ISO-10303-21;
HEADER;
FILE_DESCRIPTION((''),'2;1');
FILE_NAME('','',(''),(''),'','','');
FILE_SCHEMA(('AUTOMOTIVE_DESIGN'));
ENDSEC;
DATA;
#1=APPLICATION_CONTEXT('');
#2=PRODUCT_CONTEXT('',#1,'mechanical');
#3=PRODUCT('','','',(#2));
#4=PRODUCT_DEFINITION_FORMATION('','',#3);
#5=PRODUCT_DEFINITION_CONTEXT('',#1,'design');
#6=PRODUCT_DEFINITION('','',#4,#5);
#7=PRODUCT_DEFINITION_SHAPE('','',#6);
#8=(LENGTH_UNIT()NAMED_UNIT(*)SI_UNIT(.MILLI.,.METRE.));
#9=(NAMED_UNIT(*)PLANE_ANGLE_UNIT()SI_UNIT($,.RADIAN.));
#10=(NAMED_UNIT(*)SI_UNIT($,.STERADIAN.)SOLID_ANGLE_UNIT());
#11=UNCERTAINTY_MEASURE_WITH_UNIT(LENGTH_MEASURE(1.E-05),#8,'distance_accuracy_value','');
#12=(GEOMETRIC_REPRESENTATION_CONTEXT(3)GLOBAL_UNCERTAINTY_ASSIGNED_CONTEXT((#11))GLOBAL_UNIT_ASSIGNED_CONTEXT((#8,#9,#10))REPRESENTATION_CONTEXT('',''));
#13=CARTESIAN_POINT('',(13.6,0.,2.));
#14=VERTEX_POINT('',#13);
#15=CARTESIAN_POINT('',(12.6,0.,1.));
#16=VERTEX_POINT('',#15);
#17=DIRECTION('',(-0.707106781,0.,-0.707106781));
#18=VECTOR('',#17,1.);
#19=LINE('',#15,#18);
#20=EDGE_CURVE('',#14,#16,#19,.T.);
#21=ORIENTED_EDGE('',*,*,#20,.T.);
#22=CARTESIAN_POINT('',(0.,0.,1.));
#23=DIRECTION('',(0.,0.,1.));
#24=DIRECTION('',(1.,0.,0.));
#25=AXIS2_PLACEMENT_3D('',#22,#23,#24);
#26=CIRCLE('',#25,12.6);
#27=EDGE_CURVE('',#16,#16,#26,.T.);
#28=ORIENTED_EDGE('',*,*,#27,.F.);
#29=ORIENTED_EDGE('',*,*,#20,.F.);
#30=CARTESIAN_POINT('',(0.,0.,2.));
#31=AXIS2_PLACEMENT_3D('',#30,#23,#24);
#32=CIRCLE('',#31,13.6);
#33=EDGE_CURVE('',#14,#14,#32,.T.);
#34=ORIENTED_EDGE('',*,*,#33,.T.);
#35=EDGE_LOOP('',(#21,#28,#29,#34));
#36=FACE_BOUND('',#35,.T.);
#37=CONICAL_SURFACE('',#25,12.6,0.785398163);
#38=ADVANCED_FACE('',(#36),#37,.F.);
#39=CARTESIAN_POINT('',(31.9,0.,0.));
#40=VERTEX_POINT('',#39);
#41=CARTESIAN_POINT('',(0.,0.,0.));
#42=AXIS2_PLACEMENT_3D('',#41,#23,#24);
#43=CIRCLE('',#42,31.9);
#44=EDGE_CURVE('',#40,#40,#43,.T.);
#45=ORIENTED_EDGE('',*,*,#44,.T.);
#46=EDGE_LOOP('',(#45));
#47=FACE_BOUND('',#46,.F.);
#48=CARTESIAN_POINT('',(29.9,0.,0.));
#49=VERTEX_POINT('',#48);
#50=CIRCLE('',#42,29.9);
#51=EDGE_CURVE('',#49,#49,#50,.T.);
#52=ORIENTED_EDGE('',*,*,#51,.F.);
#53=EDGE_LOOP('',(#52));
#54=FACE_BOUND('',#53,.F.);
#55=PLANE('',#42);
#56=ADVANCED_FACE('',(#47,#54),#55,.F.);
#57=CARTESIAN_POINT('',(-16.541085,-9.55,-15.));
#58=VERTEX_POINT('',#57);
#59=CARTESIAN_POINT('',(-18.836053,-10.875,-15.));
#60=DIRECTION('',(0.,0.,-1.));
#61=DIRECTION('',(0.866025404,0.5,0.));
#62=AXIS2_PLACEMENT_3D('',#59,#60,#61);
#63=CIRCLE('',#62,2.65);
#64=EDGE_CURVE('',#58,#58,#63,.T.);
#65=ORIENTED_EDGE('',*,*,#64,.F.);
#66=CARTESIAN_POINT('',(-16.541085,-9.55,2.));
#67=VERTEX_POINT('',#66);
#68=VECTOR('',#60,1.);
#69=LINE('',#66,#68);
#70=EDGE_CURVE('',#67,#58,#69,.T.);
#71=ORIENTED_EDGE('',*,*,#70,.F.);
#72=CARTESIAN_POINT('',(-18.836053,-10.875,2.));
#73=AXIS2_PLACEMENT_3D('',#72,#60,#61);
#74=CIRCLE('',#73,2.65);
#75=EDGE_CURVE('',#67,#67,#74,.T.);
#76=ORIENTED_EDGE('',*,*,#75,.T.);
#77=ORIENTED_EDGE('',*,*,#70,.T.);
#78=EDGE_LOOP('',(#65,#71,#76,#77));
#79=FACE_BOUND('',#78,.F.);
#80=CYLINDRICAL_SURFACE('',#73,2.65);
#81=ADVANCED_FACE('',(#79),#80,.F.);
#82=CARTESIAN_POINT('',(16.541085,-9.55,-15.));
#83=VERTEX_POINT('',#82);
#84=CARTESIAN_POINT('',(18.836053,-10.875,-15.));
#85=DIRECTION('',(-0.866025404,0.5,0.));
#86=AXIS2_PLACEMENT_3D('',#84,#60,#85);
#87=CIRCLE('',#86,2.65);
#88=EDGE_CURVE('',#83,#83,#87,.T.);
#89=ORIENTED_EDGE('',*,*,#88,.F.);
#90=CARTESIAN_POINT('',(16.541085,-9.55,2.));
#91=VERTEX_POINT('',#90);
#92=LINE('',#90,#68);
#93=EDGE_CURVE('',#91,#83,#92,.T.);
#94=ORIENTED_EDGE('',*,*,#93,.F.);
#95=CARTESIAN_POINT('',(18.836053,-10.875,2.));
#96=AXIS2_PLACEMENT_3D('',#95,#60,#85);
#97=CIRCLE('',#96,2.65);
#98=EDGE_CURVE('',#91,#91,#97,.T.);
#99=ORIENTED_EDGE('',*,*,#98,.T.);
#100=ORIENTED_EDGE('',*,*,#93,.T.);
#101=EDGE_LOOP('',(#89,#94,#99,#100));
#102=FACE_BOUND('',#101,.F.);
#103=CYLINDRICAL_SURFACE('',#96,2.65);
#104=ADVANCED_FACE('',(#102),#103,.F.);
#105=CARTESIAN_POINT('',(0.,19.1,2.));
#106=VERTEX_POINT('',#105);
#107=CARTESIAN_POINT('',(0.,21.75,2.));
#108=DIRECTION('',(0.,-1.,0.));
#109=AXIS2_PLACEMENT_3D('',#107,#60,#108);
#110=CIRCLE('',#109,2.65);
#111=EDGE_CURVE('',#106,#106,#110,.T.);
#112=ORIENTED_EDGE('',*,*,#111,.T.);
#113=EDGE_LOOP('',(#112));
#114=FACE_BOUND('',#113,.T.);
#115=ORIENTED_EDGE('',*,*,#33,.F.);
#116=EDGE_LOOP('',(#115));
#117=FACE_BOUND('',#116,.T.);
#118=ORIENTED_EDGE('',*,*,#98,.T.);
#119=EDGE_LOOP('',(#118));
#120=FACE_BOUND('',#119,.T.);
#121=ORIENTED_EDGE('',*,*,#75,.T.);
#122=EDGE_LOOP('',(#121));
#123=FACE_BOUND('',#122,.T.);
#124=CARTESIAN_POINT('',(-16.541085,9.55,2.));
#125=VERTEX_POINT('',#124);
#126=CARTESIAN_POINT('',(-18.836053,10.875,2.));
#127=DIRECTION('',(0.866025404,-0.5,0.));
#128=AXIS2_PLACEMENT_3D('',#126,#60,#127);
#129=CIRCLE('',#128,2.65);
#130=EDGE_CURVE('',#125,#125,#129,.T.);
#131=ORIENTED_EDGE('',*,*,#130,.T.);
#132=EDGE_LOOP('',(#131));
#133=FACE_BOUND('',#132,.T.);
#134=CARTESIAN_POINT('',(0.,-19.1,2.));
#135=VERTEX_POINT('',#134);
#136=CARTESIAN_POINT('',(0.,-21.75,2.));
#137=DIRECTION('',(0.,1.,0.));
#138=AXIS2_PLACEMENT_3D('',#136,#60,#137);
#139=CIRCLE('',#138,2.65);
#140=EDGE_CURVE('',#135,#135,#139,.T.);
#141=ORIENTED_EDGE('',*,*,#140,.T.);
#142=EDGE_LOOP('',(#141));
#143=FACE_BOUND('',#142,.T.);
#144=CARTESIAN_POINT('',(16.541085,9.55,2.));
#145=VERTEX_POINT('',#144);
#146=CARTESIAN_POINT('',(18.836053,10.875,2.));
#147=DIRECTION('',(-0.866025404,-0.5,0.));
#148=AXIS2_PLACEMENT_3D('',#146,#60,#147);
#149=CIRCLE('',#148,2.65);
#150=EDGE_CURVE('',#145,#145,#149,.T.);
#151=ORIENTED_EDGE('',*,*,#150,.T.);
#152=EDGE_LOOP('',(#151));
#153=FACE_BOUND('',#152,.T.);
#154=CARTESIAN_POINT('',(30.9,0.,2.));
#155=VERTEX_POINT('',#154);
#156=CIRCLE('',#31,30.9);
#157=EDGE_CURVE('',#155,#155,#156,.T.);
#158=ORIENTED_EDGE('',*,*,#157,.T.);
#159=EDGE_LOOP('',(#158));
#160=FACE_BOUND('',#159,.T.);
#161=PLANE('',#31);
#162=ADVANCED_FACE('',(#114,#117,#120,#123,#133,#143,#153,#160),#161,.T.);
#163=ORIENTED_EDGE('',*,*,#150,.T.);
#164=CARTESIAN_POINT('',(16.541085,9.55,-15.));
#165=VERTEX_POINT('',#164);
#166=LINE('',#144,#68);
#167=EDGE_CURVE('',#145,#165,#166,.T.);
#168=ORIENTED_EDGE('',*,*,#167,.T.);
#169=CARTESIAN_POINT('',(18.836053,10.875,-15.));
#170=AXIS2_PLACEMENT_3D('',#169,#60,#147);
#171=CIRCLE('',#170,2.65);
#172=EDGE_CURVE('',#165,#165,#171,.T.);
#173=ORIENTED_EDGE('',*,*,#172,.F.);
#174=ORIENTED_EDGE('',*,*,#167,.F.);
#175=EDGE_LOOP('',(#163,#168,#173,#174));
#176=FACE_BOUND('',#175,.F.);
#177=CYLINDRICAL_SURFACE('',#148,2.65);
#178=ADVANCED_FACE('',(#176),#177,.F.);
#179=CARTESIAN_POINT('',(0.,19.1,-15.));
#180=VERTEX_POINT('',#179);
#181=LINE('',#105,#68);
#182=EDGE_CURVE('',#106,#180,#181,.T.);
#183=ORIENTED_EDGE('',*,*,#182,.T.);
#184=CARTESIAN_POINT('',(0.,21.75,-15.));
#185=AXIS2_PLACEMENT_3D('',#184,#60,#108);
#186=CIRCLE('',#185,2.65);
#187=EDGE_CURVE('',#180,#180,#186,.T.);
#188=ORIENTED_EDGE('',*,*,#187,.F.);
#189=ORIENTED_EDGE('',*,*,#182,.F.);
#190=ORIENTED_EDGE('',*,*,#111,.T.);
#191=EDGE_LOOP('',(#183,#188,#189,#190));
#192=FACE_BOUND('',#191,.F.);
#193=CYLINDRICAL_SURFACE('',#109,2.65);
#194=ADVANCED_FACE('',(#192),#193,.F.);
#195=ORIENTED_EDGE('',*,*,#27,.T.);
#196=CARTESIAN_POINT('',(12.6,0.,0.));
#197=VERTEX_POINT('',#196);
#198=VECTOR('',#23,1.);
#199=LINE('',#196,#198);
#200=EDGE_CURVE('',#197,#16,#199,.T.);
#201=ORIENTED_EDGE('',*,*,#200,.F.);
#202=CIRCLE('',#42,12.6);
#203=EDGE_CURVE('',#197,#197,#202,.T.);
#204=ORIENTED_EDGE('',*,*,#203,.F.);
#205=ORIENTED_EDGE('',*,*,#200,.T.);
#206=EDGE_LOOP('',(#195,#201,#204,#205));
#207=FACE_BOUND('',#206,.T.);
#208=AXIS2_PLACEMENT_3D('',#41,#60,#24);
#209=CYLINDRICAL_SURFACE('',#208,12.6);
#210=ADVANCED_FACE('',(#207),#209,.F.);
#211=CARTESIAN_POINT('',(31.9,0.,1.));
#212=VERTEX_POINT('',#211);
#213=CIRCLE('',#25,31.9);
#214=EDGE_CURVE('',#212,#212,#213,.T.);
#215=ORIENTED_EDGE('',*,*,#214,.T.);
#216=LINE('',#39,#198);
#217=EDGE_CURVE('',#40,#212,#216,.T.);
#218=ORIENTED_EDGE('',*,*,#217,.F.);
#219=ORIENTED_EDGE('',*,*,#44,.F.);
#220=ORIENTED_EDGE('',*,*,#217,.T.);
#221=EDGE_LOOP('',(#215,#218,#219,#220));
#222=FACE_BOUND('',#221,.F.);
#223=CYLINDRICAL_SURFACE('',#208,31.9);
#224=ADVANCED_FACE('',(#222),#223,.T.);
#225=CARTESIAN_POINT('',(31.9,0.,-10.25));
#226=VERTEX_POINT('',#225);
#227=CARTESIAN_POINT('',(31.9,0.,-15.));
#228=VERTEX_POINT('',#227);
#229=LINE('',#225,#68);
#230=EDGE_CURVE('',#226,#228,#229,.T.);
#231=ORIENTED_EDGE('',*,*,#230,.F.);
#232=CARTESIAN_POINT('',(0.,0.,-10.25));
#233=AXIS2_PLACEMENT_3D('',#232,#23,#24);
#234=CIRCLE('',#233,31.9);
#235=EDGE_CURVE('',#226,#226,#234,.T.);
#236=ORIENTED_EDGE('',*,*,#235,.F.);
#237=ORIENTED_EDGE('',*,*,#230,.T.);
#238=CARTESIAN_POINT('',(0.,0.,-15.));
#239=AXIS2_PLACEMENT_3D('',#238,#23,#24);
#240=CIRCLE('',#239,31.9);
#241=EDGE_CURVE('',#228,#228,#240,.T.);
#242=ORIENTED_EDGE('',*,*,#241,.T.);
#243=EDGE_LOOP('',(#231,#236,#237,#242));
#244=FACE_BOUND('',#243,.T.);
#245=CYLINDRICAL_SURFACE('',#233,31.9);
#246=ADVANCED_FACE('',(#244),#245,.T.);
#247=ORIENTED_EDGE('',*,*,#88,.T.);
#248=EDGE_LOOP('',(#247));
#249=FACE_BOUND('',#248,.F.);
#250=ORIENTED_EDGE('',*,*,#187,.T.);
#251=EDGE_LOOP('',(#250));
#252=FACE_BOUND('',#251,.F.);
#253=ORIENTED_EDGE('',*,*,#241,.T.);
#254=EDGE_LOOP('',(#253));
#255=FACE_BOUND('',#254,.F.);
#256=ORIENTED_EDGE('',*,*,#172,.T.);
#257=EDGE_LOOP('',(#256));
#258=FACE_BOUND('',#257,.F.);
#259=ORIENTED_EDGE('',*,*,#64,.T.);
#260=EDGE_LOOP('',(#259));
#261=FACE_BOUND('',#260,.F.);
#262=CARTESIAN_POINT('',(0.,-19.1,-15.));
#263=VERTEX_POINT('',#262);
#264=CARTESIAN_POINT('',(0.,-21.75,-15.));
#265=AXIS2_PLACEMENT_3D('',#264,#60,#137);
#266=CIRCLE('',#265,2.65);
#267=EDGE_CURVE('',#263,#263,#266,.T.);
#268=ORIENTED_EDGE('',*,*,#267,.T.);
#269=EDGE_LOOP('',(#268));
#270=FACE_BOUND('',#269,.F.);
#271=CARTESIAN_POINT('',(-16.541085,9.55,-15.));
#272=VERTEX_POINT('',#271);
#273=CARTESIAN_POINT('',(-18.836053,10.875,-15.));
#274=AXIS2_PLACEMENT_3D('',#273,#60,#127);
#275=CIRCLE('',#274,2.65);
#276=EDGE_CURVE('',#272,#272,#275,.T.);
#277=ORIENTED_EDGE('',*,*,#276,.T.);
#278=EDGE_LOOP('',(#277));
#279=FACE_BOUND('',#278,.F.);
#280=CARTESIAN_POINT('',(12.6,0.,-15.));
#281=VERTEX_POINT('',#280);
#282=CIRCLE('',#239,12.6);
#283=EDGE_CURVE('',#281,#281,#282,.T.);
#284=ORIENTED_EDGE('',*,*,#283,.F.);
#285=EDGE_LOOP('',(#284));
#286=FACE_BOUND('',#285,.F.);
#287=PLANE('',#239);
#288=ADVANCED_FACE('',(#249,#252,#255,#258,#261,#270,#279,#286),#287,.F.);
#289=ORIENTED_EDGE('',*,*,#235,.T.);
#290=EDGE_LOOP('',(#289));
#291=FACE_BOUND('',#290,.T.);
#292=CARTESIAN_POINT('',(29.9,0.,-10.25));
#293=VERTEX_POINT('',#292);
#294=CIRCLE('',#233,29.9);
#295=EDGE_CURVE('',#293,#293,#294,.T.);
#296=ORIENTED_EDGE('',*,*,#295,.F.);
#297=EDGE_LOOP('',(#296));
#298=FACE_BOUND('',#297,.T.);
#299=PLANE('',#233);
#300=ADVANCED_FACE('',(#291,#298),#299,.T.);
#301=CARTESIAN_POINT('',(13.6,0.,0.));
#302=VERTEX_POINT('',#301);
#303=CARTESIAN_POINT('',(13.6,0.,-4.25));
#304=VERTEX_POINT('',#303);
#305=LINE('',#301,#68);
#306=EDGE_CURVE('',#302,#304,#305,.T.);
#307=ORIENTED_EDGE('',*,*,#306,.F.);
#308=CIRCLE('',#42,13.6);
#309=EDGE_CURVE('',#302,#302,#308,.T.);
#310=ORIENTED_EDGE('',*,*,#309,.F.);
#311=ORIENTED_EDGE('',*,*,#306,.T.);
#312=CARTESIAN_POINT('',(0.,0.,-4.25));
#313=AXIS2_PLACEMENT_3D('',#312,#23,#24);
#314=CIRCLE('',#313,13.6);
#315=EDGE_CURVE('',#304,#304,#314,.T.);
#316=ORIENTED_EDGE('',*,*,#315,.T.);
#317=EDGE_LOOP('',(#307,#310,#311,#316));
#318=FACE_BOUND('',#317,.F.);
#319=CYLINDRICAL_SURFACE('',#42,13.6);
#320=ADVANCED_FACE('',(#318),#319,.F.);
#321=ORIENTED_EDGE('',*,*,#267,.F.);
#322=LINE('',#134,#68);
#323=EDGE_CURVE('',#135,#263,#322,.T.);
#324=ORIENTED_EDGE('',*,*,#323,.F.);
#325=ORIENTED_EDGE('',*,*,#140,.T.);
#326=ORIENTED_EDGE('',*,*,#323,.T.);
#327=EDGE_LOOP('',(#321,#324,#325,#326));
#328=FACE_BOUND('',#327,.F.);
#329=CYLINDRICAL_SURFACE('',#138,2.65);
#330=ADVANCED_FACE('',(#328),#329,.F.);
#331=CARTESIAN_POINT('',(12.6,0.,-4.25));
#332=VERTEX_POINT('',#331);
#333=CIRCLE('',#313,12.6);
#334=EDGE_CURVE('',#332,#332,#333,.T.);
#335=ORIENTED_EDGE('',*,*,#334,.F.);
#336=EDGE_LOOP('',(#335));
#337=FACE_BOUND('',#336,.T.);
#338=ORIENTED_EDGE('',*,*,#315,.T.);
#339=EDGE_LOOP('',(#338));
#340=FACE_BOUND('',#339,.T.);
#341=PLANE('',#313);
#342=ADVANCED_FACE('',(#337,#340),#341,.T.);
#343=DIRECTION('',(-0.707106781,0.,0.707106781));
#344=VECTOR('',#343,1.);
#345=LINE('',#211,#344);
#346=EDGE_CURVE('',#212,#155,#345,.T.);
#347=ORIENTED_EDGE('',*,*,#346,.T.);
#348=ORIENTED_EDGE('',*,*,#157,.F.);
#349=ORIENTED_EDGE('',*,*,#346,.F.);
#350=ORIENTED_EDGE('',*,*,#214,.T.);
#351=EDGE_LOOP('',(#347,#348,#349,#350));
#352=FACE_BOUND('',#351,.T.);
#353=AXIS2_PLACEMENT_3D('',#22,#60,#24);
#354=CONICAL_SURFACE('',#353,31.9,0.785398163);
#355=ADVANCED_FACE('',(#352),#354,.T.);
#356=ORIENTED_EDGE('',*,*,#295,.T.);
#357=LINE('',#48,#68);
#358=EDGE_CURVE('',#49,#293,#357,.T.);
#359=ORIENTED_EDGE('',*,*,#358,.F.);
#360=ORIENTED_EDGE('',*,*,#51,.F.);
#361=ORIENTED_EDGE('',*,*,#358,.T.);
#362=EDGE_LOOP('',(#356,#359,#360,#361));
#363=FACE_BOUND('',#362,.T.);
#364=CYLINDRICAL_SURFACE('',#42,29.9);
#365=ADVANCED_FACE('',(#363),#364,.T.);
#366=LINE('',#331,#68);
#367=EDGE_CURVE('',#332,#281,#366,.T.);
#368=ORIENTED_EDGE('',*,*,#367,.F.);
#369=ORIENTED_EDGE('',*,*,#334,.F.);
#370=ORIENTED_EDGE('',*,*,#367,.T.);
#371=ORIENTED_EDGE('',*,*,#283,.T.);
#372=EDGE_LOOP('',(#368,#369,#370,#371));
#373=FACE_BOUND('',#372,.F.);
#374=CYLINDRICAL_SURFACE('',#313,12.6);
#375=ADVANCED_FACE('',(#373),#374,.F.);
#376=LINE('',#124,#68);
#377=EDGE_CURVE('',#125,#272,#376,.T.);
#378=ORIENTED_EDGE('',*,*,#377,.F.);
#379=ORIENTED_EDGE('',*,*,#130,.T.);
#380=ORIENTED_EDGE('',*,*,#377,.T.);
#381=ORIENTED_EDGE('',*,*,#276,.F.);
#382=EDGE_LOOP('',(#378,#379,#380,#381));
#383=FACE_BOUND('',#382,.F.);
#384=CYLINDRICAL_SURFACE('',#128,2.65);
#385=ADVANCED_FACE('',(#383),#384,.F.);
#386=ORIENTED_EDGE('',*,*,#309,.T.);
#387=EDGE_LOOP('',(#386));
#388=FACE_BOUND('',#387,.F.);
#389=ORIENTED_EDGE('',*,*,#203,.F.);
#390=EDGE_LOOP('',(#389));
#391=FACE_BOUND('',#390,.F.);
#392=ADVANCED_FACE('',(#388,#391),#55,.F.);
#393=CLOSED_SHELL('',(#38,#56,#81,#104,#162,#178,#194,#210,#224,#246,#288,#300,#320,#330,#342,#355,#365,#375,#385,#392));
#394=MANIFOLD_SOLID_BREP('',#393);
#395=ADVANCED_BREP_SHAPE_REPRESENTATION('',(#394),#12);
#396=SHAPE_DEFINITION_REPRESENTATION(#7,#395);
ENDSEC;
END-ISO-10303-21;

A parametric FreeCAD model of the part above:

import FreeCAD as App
import Part
import Sketcher


def edges_at(feature, points):
    """Names of the edges that pass closest to the given points."""
    edges = feature.Shape.Edges
    near = lambda p: min(range(len(edges)), key=lambda i: edges[i].distToShape(Part.Vertex(*p))[0])
    return sorted({f"Edge{near(p) + 1}" for p in points})

doc = App.newDocument("Part")
body = doc.addObject("PartDesign::Body", "Body")

# Sketch on XY plane
sketch1 = body.newObject("Sketcher::SketchObject", "Sketch")
sketch1.AttachmentSupport = (doc.getObject("XY_Plane"), [""])
sketch1.MapMode = "FlatFace"
sketch1.addGeometry([
    Part.Circle(App.Vector(0, 0, 0), App.Vector(0, 0, 1), 30),
    Part.Circle(App.Vector(0, 0, 0), App.Vector(0, 0, 1), 14),
], False)
sketch1.addConstraint([
    Sketcher.Constraint("Coincident", 0, 3, -1, 1),
    Sketcher.Constraint("Coincident", 1, 3, -1, 1),
    Sketcher.Constraint("Diameter", 0, 59.8),
    Sketcher.Constraint("Diameter", 1, 27.2),
])
pad1 = body.newObject("PartDesign::Pad", "Pad")
pad1.Profile = sketch1
pad1.Length = 15
pad1.Reversed = True

# Sketch on XY plane
sketch2 = body.newObject("Sketcher::SketchObject", "Sketch001")
sketch2.AttachmentSupport = (doc.getObject("XY_Plane"), [""])
sketch2.MapMode = "FlatFace"
sketch2.AttachmentOffset = App.Placement(App.Vector(0, 0, -4.25), App.Rotation())
sketch2.addGeometry([
    Part.Circle(App.Vector(0, 0, 0), App.Vector(0, 0, 1), 14),
    Part.Circle(App.Vector(0, 0, 0), App.Vector(0, 0, 1), 13),
], False)
sketch2.addConstraint([
    Sketcher.Constraint("Coincident", 0, 3, -1, 1),
    Sketcher.Constraint("Coincident", 1, 3, -1, 1),
    Sketcher.Constraint("Diameter", 0, 27.2),
    Sketcher.Constraint("Diameter", 1, 25.2),
])
pad2 = body.newObject("PartDesign::Pad", "Pad001")
pad2.Profile = sketch2
pad2.Length = 10.75
pad2.Reversed = True

# Sketch on XY plane
sketch3 = body.newObject("Sketcher::SketchObject", "Sketch002")
sketch3.AttachmentSupport = (doc.getObject("XY_Plane"), [""])
sketch3.MapMode = "FlatFace"
sketch3.AttachmentOffset = App.Placement(App.Vector(0, 0, -10.25), App.Rotation())
sketch3.addGeometry([
    Part.Circle(App.Vector(0, 0, 0), App.Vector(0, 0, 1), 32),
    Part.Circle(App.Vector(0, 0, 0), App.Vector(0, 0, 1), 30),
], False)
sketch3.addConstraint([
    Sketcher.Constraint("Coincident", 0, 3, -1, 1),
    Sketcher.Constraint("Coincident", 1, 3, -1, 1),
    Sketcher.Constraint("Diameter", 0, 63.8),
    Sketcher.Constraint("Diameter", 1, 59.8),
])
pad3 = body.newObject("PartDesign::Pad", "Pad002")
pad3.Profile = sketch3
pad3.Length = 4.75
pad3.Reversed = True

# Sketch on XY plane
sketch4 = body.newObject("Sketcher::SketchObject", "Sketch003")
sketch4.AttachmentSupport = (doc.getObject("XY_Plane"), [""])
sketch4.MapMode = "FlatFace"
sketch4.addGeometry([
    Part.Circle(App.Vector(0, 0, 0), App.Vector(0, 0, 1), 32),
    Part.Circle(App.Vector(0, 0, 0), App.Vector(0, 0, 1), 13),
], False)
sketch4.addConstraint([
    Sketcher.Constraint("Coincident", 0, 3, -1, 1),
    Sketcher.Constraint("Coincident", 1, 3, -1, 1),
    Sketcher.Constraint("Diameter", 0, 63.8),
    Sketcher.Constraint("Diameter", 1, 25.2),
])
pad4 = body.newObject("PartDesign::Pad", "Pad003")
pad4.Profile = sketch4
pad4.Length = 2

# Sketch on XY plane
sketch5 = body.newObject("Sketcher::SketchObject", "Sketch004")
sketch5.AttachmentSupport = (doc.getObject("XY_Plane"), [""])
sketch5.MapMode = "FlatFace"
sketch5.AttachmentOffset = App.Placement(App.Vector(0, 0, 2), App.Rotation())
sketch5.addGeometry(Part.Circle(App.Vector(0, 21.8, 0), App.Vector(0, 0, 1), 2.6), False)
sketch5.addConstraint([
    Sketcher.Constraint("PointOnObject", 0, 3, -2),
    Sketcher.Constraint("Diameter", 0, 5.3),
    Sketcher.Constraint("DistanceY", -1, 1, 0, 3, 21.75),
])
doc.recompute()
hole = body.newObject("PartDesign::Hole", "Hole")
hole.Profile = sketch5
hole.ThreadType = "None"
hole.Diameter = 5.3
hole.DepthType = "ThroughAll"
doc.recompute()

polarpattern = body.newObject("PartDesign::PolarPattern", "PolarPattern")
polarpattern.Originals = [hole]
polarpattern.Axis = (doc.getObject("Z_Axis"), [""])
polarpattern.Angle = 360
polarpattern.Occurrences = 6
body.Tip = polarpattern
doc.recompute()

chamfer = body.newObject("PartDesign::Chamfer", "Chamfer")
chamfer.Base = (polarpattern, edges_at(polarpattern, [(-31.9, 0, 2), (-12.6, 0, 2)]))
chamfer.Size = 1

doc.recompute()
